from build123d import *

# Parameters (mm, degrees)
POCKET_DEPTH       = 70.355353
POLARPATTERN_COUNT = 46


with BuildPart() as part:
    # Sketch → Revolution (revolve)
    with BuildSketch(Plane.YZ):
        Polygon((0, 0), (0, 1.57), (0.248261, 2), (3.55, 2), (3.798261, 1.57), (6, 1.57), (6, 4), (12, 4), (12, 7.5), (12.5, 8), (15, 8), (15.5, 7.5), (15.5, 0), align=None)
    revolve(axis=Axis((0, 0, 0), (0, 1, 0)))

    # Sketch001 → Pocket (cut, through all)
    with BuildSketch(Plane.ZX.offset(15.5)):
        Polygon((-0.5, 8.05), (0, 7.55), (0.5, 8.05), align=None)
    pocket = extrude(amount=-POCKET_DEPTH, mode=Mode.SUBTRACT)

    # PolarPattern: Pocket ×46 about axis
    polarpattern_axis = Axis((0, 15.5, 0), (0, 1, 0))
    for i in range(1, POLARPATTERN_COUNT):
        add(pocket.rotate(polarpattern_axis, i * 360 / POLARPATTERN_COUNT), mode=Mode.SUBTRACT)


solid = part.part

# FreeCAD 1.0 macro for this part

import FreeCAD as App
import Part
import Sketcher

V = App.Vector


def add_polygon(sketch, points):
    """Adds a closed chain of lines whose ends are joined by coincident constraints."""
    first, n = sketch.GeometryCount, len(points)
    for a, b in zip(points, points[1:] + points[:1]):
        sketch.addGeometry(Part.LineSegment(App.Vector(*a, 0), App.Vector(*b, 0)), False)
    for i in range(n):
        sketch.addConstraint(Sketcher.Constraint("Coincident", first + i, 2, first + (i + 1) % n, 1))

doc = App.newDocument("Part")
body = doc.addObject("PartDesign::Body", "Body")

sketch1 = body.newObject("Sketcher::SketchObject", "Sketch")
sketch1.AttachmentSupport = (doc.getObject("YZ_Plane"), [""])
sketch1.MapMode = "FlatFace"
add_polygon(sketch1, [(0, 1.57), (0, 0), (15.5, 0), (15.5, 7.5), (15, 8), (12.5, 8), (12, 7.5), (12, 4), (6, 4), (6, 1.57), (3.8, 1.57), (3.55, 2), (0.25, 2)])
sketch1.addConstraint([
    Sketcher.Constraint("Vertical", 0),
    Sketcher.Constraint("Horizontal", 1),
    Sketcher.Constraint("Vertical", 2),
    Sketcher.Constraint("Horizontal", 4),
    Sketcher.Constraint("Vertical", 6),
    Sketcher.Constraint("Horizontal", 7),
    Sketcher.Constraint("Vertical", 8),
    Sketcher.Constraint("Horizontal", 9),
    Sketcher.Constraint("Horizontal", 11),
    Sketcher.Constraint("Coincident", 0, 2, -1, 1),
    Sketcher.Constraint("Perpendicular", 3, 5),
    Sketcher.Constraint("Horizontal", 2, 2, 5, 2),
    Sketcher.Constraint("Horizontal", 9, 2, 12, 2),
    Sketcher.Constraint("Equal", 3, 5),
    Sketcher.Constraint("Equal", 10, 12),
    Sketcher.Constraint("DistanceX", 7, 2, 7, 1, 6.0),
    Sketcher.Constraint("DistanceX", 1, 1, 1, 2, 15.5),
    Sketcher.Constraint("DistanceX", 4, 2, 4, 1, 2.5),
    Sketcher.Constraint("DistanceY", 2, 1, 2, 2, 7.5),
    Sketcher.Constraint("DistanceY", 6, 2, 6, 1, 3.5),
    Sketcher.Constraint("DistanceX", -1, 1, 3, 2, 15.0),
    Sketcher.Constraint("DistanceY", -1, 1, 10, 2, 2.0),
    Sketcher.Constraint("DistanceY", 0, 2, 0, 1, 1.57),
    Sketcher.Constraint("DistanceX", -1, 1, 10, 2, 3.55),
    Sketcher.Constraint("DistanceX", 9, 2, 9, 1, 2.201739),
])
revolution = body.newObject("PartDesign::Revolution", "Revolution")
revolution.Profile = sketch1
revolution.ReferenceAxis = (sketch1, ["H_Axis"])
revolution.Angle = 360

sketch2 = body.newObject("Sketcher::SketchObject", "Sketch001")
sketch2.AttachmentSupport = (doc.getObject("XZ_Plane"), [""])
sketch2.MapMode = "FlatFace"
sketch2.AttachmentOffset = App.Placement(V(0, 0, -15.5), App.Rotation())
add_polygon(sketch2, [(8.1, -0.5), (7.5, 0), (8.1, 0.5)])
sketch2.addConstraint([
    Sketcher.Constraint("Vertical", 2),
    Sketcher.Constraint("PointOnObject", 0, 2, -1),
    Sketcher.Constraint("Perpendicular", 0, 1),
    Sketcher.Constraint("Equal", 0, 1),
    Sketcher.Constraint("DistanceY", 2, 2, 2, 1, 1.0),
    Sketcher.Constraint("DistanceX", -1, 1, 0, 2, 7.55),
])
pocket1 = body.newObject("PartDesign::Pocket", "Pocket")
pocket1.Profile = sketch2
pocket1.Type = "ThroughAll"
pocket1.Reversed = True
doc.recompute()

polarpattern = body.newObject("PartDesign::PolarPattern", "PolarPattern")
polarpattern.Originals = [pocket1]
polarpattern.Axis = (doc.getObject("Y_Axis"), [""])
polarpattern.Angle = 360
polarpattern.Occurrences = 46
body.Tip = polarpattern

doc.recompute()
